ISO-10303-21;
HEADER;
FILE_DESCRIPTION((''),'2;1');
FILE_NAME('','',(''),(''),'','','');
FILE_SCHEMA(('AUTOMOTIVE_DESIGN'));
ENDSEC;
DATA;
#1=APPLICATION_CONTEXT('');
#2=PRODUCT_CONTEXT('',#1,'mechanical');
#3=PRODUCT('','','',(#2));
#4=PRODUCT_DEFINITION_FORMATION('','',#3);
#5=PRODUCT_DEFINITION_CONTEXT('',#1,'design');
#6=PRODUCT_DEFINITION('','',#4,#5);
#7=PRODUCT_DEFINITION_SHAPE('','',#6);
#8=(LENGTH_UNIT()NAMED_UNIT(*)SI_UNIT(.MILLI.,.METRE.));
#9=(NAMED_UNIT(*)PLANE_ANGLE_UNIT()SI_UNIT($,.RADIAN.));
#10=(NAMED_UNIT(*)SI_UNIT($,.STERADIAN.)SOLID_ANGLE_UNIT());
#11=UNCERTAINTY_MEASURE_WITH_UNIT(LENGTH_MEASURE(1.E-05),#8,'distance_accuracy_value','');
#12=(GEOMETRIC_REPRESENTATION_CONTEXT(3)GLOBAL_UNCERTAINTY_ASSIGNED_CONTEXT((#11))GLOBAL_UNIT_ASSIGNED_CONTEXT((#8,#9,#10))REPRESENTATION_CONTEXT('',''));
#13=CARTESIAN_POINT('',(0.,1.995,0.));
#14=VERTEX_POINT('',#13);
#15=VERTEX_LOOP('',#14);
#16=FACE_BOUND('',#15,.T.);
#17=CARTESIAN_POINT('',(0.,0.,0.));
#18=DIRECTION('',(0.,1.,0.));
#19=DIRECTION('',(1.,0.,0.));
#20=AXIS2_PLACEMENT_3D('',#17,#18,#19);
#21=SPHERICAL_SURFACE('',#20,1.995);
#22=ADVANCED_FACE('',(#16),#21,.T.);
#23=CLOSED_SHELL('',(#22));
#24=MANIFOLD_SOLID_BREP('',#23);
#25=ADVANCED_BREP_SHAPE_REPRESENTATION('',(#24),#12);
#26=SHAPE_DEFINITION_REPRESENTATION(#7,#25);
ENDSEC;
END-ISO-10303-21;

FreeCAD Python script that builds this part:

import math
import FreeCAD as App
import Part
import Sketcher

doc = App.newDocument("Part")
body = doc.addObject("PartDesign::Body", "Body")

# Sketch on XY plane
sketch1 = body.newObject("Sketcher::SketchObject", "Sketch")
sketch1.AttachmentSupport = (doc.getObject("XY_Plane"), [""])
sketch1.MapMode = "FlatFace"
sketch1.addGeometry(Part.LineSegment(App.Vector(0, 2, 0), App.Vector(0, -2, 0)), False)
sketch1.addGeometry(Part.ArcOfCircle(Part.Circle(App.Vector(0, 0, 0), App.Vector(0, 0, 1), 2), math.radians(-90), math.radians(90)), False)
sketch1.addConstraint(Sketcher.Constraint("Coincident", 0, 1, 1, 2))
sketch1.addConstraint(Sketcher.Constraint("Coincident", 1, 1, 0, 2))
sketch1.addConstraint(Sketcher.Constraint("Vertical", 0))
sketch1.addConstraint(Sketcher.Constraint("Coincident", 1, 3, -1, 1))
sketch1.addConstraint(Sketcher.Constraint("PointOnObject", 0, 1, -2))
sketch1.addConstraint(Sketcher.Constraint("Radius", 1, 1.995))
revolution = body.newObject("PartDesign::Revolution", "Revolution")
revolution.Profile = sketch1
revolution.ReferenceAxis = (sketch1, ["V_Axis"])
revolution.Angle = 360

doc.recompute()
